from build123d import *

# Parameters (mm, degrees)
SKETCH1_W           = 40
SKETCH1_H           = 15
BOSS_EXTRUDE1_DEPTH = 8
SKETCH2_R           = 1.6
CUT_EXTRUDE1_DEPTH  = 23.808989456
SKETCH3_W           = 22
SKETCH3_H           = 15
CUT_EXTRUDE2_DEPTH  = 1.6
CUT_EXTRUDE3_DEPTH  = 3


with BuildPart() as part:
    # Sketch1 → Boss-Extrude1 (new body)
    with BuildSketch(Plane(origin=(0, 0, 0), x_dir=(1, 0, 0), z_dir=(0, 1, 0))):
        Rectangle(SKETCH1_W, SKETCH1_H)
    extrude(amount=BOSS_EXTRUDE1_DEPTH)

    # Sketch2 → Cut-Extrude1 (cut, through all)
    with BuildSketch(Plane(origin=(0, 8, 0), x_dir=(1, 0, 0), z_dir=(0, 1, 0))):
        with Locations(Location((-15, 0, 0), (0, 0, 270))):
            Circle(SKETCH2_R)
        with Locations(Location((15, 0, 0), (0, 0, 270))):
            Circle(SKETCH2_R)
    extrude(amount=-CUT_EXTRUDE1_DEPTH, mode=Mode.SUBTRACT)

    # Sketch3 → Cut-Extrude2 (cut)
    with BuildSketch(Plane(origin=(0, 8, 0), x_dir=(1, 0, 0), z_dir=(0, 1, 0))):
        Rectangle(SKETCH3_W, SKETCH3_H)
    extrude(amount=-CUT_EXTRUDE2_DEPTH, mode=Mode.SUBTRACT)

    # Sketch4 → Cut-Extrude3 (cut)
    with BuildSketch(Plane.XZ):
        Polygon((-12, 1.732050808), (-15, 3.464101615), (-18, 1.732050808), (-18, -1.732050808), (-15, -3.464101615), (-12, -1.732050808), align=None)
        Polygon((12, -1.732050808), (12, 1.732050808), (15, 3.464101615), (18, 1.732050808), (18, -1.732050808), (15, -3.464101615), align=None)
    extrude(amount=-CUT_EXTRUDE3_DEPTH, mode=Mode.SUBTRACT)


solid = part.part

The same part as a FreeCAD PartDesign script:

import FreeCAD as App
import Part
import Sketcher
from FreeCAD import Vector
Q = App.Units.Quantity

doc = App.newDocument("Part")
body = doc.addObject("PartDesign::Body", "Body")

sketch1 = body.newObject("Sketcher::SketchObject", "Sketch")
sketch1.AttachmentSupport = (doc.getObject("XZ_Plane"), [""])
sketch1.MapMode = "FlatFace"
sketch1.addGeometry([
    Part.LineSegment(Vector(-20, -8, 0), Vector(-20, 8, 0)),
    Part.LineSegment(Vector(-20, 8, 0), Vector(20, 8, 0)),
    Part.LineSegment(Vector(20, 8, 0), Vector(20, -8, 0)),
    Part.LineSegment(Vector(20, -8, 0), Vector(-20, -8, 0)),
], False)
sketch1.addConstraint([
    Sketcher.Constraint("Coincident", 0, 2, 1, 1),
    Sketcher.Constraint("Coincident", 1, 2, 2, 1),
    Sketcher.Constraint("Coincident", 2, 2, 3, 1),
    Sketcher.Constraint("Coincident", 3, 2, 0, 1),
    Sketcher.Constraint("Vertical", 0),
    Sketcher.Constraint("Horizontal", 1),
    Sketcher.Constraint("Vertical", 2),
    Sketcher.Constraint("Horizontal", 3),
    Sketcher.Constraint("Symmetric", 0, 2, 2, 2, -1, 1),
    Sketcher.Constraint("DistanceX", 1, 1, 1, 2, 40.0),
    Sketcher.Constraint("DistanceY", 0, 1, 0, 2, 15.0),
])
pad1 = body.newObject("PartDesign::Pad", "Pad")
pad1.Profile = sketch1
pad1.Length = 8
pad1.Reversed = True

sketch2 = body.newObject("Sketcher::SketchObject", "Sketch001")
sketch2.AttachmentSupport = (doc.getObject("XZ_Plane"), [""])
sketch2.MapMode = "FlatFace"
sketch2.AttachmentOffset = App.Placement(Vector(0, 0, -8), App.Rotation())
sketch2.addGeometry([
    Part.Circle(Vector(-15, 0, 0), Vector(0, 0, 1), 1.6),
    Part.Circle(Vector(15, 0, 0), Vector(0, 0, 1), 1.6),
], False)
sketch2.addConstraint([
    Sketcher.Constraint("Equal", 0, 1),
    Sketcher.Constraint("Symmetric", 0, 3, 1, 3, -1, 1),
    Sketcher.Constraint("PointOnObject", 0, 3, -1),
    Sketcher.Constraint("Diameter", 0, 3.2),
    Sketcher.Constraint("DistanceX", 0, 3, -1, 1, 15.0),
])
pocket1 = body.newObject("PartDesign::Pocket", "Pocket")
pocket1.Profile = sketch2
pocket1.Type = "ThroughAll"
pocket1.Reversed = True

sketch3 = body.newObject("Sketcher::SketchObject", "Sketch002")
sketch3.AttachmentSupport = (doc.getObject("XZ_Plane"), [""])
sketch3.MapMode = "FlatFace"
sketch3.AttachmentOffset = App.Placement(Vector(0, 0, -8), App.Rotation())
sketch3.addGeometry([
    Part.LineSegment(Vector(-11, -8, 0), Vector(-11, 8, 0)),
    Part.LineSegment(Vector(-11, 8, 0), Vector(11, 8, 0)),
    Part.LineSegment(Vector(11, 8, 0), Vector(11, -8, 0)),
    Part.LineSegment(Vector(11, -8, 0), Vector(-11, -8, 0)),
], False)
sketch3.addConstraint([
    Sketcher.Constraint("Coincident", 0, 2, 1, 1),
    Sketcher.Constraint("Coincident", 1, 2, 2, 1),
    Sketcher.Constraint("Coincident", 2, 2, 3, 1),
    Sketcher.Constraint("Coincident", 3, 2, 0, 1),
    Sketcher.Constraint("Vertical", 0),
    Sketcher.Constraint("Horizontal", 1),
    Sketcher.Constraint("Vertical", 2),
    Sketcher.Constraint("Horizontal", 3),
    Sketcher.Constraint("Symmetric", 0, 2, 2, 2, -1, 1),
    Sketcher.Constraint("DistanceX", 1, 1, 1, 2, 22.0),
    Sketcher.Constraint("DistanceY", 0, 1, 0, 2, 15.0),
])
pocket2 = body.newObject("PartDesign::Pocket", "Pocket001")
pocket2.Profile = sketch3
pocket2.Length = 1.6
pocket2.Reversed = True

sketch4 = body.newObject("Sketcher::SketchObject", "Sketch003")
sketch4.AttachmentSupport = (doc.getObject("XZ_Plane"), [""])
sketch4.MapMode = "FlatFace"
sketch4.addGeometry([
    Part.LineSegment(Vector(-12, 1.7, 0), Vector(-15, 3.5, 0)),
    Part.LineSegment(Vector(-15, 3.5, 0), Vector(-18, 1.7, 0)),
    Part.LineSegment(Vector(-18, 1.7, 0), Vector(-18, -1.7, 0)),
    Part.LineSegment(Vector(-18, -1.7, 0), Vector(-15, -3.5, 0)),
    Part.LineSegment(Vector(-15, -3.5, 0), Vector(-12, -1.7, 0)),
    Part.LineSegment(Vector(-12, -1.7, 0), Vector(-12, 1.7, 0)),
    Part.LineSegment(Vector(12, 1.7, 0), Vector(12, -1.7, 0)),
    Part.LineSegment(Vector(12, -1.7, 0), Vector(15, -3.5, 0)),
    Part.LineSegment(Vector(15, -3.5, 0), Vector(18, -1.7, 0)),
    Part.LineSegment(Vector(18, -1.7, 0), Vector(18, 1.7, 0)),
    Part.LineSegment(Vector(18, 1.7, 0), Vector(15, 3.5, 0)),
    Part.LineSegment(Vector(15, 3.5, 0), Vector(12, 1.7, 0)),
], False)
sketch4.addConstraint([
    Sketcher.Constraint("Coincident", 0, 2, 1, 1),
    Sketcher.Constraint("Coincident", 1, 2, 2, 1),
    Sketcher.Constraint("Coincident", 2, 2, 3, 1),
    Sketcher.Constraint("Coincident", 3, 2, 4, 1),
    Sketcher.Constraint("Coincident", 4, 2, 5, 1),
    Sketcher.Constraint("Coincident", 5, 2, 0, 1),
    Sketcher.Constraint("Coincident", 6, 2, 7, 1),
    Sketcher.Constraint("Coincident", 7, 2, 8, 1),
    Sketcher.Constraint("Coincident", 8, 2, 9, 1),
    Sketcher.Constraint("Coincident", 9, 2, 10, 1),
    Sketcher.Constraint("Coincident", 10, 2, 11, 1),
    Sketcher.Constraint("Coincident", 11, 2, 6, 1),
    Sketcher.Constraint("Vertical", 2),
    Sketcher.Constraint("Vertical", 5),
    Sketcher.Constraint("Vertical", 6),
    Sketcher.Constraint("Vertical", 9),
    Sketcher.Constraint("Symmetric", 5, 2, 6, 2, -1, 1),
    Sketcher.Constraint("Symmetric", 0, 2, 7, 2, -1, 1),
    Sketcher.Constraint("Symmetric", 1, 2, 8, 2, -1, 1),
    Sketcher.Constraint("Symmetric", 3, 2, 10, 2, -1, 1),
    Sketcher.Constraint("Symmetric", 3, 2, 7, 2, -2),
    Sketcher.Constraint("Parallel", 0, 3),
    Sketcher.Constraint("Parallel", 1, 4),
    Sketcher.Constraint("Parallel", 7, 10),
    Sketcher.Constraint("Parallel", 8, 11),
    Sketcher.Constraint("Horizontal", 2, 2, 4, 2),
    Sketcher.Constraint("Horizontal", 1, 2, 5, 2),
    Sketcher.Constraint("Angle", 0, Q("150 deg")),
    Sketcher.Constraint("DistanceX", 0, 2, -1, 1, 15.0),
    Sketcher.Constraint("DistanceX", 1, 2, -1, 1, 18.0),
    Sketcher.Constraint("DistanceY", 2, 2, 2, 1, 3.464102),
])
pocket3 = body.newObject("PartDesign::Pocket", "Pocket002")
pocket3.Profile = sketch4
pocket3.Length = 3

doc.recompute()
